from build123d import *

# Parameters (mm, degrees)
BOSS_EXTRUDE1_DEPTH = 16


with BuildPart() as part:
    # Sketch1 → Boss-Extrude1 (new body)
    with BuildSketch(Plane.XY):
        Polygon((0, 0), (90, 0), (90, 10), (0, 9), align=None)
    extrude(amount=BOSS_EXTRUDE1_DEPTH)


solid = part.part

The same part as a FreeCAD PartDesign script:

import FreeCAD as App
import Part
import Sketcher

V = App.Vector

doc = App.newDocument("Part")
body = doc.addObject("PartDesign::Body", "Body")

# Sketch on XY plane
sketch1 = body.newObject("Sketcher::SketchObject", "Sketch")
sketch1.AttachmentSupport = (doc.getObject("XY_Plane"), [""])
sketch1.MapMode = "FlatFace"
sketch1.addGeometry([
    Part.LineSegment(V(0, 0, 0), V(90, 0, 0)),
    Part.LineSegment(V(90, 0, 0), V(90, 10, 0)),
    Part.LineSegment(V(90, 10, 0), V(0, 9, 0)),
    Part.LineSegment(V(0, 9, 0), V(0, 0, 0)),
], False)
sketch1.addConstraint([
    Sketcher.Constraint("Coincident", 0, 2, 1, 1),
    Sketcher.Constraint("Coincident", 1, 2, 2, 1),
    Sketcher.Constraint("Coincident", 2, 2, 3, 1),
    Sketcher.Constraint("Coincident", 3, 2, 0, 1),
    Sketcher.Constraint("Horizontal", 0),
    Sketcher.Constraint("Vertical", 1),
    Sketcher.Constraint("Vertical", 3),
    Sketcher.Constraint("Coincident", 3, 2, -1, 1),
    Sketcher.Constraint("DistanceX", 0, 1, 0, 2, 90.0),
    Sketcher.Constraint("DistanceY", 1, 1, 1, 2, 10.0),
    Sketcher.Constraint("DistanceY", 3, 2, 3, 1, 9.0),
])
pad1 = body.newObject("PartDesign::Pad", "Pad")
pad1.Profile = sketch1
pad1.Length = 16

doc.recompute()
